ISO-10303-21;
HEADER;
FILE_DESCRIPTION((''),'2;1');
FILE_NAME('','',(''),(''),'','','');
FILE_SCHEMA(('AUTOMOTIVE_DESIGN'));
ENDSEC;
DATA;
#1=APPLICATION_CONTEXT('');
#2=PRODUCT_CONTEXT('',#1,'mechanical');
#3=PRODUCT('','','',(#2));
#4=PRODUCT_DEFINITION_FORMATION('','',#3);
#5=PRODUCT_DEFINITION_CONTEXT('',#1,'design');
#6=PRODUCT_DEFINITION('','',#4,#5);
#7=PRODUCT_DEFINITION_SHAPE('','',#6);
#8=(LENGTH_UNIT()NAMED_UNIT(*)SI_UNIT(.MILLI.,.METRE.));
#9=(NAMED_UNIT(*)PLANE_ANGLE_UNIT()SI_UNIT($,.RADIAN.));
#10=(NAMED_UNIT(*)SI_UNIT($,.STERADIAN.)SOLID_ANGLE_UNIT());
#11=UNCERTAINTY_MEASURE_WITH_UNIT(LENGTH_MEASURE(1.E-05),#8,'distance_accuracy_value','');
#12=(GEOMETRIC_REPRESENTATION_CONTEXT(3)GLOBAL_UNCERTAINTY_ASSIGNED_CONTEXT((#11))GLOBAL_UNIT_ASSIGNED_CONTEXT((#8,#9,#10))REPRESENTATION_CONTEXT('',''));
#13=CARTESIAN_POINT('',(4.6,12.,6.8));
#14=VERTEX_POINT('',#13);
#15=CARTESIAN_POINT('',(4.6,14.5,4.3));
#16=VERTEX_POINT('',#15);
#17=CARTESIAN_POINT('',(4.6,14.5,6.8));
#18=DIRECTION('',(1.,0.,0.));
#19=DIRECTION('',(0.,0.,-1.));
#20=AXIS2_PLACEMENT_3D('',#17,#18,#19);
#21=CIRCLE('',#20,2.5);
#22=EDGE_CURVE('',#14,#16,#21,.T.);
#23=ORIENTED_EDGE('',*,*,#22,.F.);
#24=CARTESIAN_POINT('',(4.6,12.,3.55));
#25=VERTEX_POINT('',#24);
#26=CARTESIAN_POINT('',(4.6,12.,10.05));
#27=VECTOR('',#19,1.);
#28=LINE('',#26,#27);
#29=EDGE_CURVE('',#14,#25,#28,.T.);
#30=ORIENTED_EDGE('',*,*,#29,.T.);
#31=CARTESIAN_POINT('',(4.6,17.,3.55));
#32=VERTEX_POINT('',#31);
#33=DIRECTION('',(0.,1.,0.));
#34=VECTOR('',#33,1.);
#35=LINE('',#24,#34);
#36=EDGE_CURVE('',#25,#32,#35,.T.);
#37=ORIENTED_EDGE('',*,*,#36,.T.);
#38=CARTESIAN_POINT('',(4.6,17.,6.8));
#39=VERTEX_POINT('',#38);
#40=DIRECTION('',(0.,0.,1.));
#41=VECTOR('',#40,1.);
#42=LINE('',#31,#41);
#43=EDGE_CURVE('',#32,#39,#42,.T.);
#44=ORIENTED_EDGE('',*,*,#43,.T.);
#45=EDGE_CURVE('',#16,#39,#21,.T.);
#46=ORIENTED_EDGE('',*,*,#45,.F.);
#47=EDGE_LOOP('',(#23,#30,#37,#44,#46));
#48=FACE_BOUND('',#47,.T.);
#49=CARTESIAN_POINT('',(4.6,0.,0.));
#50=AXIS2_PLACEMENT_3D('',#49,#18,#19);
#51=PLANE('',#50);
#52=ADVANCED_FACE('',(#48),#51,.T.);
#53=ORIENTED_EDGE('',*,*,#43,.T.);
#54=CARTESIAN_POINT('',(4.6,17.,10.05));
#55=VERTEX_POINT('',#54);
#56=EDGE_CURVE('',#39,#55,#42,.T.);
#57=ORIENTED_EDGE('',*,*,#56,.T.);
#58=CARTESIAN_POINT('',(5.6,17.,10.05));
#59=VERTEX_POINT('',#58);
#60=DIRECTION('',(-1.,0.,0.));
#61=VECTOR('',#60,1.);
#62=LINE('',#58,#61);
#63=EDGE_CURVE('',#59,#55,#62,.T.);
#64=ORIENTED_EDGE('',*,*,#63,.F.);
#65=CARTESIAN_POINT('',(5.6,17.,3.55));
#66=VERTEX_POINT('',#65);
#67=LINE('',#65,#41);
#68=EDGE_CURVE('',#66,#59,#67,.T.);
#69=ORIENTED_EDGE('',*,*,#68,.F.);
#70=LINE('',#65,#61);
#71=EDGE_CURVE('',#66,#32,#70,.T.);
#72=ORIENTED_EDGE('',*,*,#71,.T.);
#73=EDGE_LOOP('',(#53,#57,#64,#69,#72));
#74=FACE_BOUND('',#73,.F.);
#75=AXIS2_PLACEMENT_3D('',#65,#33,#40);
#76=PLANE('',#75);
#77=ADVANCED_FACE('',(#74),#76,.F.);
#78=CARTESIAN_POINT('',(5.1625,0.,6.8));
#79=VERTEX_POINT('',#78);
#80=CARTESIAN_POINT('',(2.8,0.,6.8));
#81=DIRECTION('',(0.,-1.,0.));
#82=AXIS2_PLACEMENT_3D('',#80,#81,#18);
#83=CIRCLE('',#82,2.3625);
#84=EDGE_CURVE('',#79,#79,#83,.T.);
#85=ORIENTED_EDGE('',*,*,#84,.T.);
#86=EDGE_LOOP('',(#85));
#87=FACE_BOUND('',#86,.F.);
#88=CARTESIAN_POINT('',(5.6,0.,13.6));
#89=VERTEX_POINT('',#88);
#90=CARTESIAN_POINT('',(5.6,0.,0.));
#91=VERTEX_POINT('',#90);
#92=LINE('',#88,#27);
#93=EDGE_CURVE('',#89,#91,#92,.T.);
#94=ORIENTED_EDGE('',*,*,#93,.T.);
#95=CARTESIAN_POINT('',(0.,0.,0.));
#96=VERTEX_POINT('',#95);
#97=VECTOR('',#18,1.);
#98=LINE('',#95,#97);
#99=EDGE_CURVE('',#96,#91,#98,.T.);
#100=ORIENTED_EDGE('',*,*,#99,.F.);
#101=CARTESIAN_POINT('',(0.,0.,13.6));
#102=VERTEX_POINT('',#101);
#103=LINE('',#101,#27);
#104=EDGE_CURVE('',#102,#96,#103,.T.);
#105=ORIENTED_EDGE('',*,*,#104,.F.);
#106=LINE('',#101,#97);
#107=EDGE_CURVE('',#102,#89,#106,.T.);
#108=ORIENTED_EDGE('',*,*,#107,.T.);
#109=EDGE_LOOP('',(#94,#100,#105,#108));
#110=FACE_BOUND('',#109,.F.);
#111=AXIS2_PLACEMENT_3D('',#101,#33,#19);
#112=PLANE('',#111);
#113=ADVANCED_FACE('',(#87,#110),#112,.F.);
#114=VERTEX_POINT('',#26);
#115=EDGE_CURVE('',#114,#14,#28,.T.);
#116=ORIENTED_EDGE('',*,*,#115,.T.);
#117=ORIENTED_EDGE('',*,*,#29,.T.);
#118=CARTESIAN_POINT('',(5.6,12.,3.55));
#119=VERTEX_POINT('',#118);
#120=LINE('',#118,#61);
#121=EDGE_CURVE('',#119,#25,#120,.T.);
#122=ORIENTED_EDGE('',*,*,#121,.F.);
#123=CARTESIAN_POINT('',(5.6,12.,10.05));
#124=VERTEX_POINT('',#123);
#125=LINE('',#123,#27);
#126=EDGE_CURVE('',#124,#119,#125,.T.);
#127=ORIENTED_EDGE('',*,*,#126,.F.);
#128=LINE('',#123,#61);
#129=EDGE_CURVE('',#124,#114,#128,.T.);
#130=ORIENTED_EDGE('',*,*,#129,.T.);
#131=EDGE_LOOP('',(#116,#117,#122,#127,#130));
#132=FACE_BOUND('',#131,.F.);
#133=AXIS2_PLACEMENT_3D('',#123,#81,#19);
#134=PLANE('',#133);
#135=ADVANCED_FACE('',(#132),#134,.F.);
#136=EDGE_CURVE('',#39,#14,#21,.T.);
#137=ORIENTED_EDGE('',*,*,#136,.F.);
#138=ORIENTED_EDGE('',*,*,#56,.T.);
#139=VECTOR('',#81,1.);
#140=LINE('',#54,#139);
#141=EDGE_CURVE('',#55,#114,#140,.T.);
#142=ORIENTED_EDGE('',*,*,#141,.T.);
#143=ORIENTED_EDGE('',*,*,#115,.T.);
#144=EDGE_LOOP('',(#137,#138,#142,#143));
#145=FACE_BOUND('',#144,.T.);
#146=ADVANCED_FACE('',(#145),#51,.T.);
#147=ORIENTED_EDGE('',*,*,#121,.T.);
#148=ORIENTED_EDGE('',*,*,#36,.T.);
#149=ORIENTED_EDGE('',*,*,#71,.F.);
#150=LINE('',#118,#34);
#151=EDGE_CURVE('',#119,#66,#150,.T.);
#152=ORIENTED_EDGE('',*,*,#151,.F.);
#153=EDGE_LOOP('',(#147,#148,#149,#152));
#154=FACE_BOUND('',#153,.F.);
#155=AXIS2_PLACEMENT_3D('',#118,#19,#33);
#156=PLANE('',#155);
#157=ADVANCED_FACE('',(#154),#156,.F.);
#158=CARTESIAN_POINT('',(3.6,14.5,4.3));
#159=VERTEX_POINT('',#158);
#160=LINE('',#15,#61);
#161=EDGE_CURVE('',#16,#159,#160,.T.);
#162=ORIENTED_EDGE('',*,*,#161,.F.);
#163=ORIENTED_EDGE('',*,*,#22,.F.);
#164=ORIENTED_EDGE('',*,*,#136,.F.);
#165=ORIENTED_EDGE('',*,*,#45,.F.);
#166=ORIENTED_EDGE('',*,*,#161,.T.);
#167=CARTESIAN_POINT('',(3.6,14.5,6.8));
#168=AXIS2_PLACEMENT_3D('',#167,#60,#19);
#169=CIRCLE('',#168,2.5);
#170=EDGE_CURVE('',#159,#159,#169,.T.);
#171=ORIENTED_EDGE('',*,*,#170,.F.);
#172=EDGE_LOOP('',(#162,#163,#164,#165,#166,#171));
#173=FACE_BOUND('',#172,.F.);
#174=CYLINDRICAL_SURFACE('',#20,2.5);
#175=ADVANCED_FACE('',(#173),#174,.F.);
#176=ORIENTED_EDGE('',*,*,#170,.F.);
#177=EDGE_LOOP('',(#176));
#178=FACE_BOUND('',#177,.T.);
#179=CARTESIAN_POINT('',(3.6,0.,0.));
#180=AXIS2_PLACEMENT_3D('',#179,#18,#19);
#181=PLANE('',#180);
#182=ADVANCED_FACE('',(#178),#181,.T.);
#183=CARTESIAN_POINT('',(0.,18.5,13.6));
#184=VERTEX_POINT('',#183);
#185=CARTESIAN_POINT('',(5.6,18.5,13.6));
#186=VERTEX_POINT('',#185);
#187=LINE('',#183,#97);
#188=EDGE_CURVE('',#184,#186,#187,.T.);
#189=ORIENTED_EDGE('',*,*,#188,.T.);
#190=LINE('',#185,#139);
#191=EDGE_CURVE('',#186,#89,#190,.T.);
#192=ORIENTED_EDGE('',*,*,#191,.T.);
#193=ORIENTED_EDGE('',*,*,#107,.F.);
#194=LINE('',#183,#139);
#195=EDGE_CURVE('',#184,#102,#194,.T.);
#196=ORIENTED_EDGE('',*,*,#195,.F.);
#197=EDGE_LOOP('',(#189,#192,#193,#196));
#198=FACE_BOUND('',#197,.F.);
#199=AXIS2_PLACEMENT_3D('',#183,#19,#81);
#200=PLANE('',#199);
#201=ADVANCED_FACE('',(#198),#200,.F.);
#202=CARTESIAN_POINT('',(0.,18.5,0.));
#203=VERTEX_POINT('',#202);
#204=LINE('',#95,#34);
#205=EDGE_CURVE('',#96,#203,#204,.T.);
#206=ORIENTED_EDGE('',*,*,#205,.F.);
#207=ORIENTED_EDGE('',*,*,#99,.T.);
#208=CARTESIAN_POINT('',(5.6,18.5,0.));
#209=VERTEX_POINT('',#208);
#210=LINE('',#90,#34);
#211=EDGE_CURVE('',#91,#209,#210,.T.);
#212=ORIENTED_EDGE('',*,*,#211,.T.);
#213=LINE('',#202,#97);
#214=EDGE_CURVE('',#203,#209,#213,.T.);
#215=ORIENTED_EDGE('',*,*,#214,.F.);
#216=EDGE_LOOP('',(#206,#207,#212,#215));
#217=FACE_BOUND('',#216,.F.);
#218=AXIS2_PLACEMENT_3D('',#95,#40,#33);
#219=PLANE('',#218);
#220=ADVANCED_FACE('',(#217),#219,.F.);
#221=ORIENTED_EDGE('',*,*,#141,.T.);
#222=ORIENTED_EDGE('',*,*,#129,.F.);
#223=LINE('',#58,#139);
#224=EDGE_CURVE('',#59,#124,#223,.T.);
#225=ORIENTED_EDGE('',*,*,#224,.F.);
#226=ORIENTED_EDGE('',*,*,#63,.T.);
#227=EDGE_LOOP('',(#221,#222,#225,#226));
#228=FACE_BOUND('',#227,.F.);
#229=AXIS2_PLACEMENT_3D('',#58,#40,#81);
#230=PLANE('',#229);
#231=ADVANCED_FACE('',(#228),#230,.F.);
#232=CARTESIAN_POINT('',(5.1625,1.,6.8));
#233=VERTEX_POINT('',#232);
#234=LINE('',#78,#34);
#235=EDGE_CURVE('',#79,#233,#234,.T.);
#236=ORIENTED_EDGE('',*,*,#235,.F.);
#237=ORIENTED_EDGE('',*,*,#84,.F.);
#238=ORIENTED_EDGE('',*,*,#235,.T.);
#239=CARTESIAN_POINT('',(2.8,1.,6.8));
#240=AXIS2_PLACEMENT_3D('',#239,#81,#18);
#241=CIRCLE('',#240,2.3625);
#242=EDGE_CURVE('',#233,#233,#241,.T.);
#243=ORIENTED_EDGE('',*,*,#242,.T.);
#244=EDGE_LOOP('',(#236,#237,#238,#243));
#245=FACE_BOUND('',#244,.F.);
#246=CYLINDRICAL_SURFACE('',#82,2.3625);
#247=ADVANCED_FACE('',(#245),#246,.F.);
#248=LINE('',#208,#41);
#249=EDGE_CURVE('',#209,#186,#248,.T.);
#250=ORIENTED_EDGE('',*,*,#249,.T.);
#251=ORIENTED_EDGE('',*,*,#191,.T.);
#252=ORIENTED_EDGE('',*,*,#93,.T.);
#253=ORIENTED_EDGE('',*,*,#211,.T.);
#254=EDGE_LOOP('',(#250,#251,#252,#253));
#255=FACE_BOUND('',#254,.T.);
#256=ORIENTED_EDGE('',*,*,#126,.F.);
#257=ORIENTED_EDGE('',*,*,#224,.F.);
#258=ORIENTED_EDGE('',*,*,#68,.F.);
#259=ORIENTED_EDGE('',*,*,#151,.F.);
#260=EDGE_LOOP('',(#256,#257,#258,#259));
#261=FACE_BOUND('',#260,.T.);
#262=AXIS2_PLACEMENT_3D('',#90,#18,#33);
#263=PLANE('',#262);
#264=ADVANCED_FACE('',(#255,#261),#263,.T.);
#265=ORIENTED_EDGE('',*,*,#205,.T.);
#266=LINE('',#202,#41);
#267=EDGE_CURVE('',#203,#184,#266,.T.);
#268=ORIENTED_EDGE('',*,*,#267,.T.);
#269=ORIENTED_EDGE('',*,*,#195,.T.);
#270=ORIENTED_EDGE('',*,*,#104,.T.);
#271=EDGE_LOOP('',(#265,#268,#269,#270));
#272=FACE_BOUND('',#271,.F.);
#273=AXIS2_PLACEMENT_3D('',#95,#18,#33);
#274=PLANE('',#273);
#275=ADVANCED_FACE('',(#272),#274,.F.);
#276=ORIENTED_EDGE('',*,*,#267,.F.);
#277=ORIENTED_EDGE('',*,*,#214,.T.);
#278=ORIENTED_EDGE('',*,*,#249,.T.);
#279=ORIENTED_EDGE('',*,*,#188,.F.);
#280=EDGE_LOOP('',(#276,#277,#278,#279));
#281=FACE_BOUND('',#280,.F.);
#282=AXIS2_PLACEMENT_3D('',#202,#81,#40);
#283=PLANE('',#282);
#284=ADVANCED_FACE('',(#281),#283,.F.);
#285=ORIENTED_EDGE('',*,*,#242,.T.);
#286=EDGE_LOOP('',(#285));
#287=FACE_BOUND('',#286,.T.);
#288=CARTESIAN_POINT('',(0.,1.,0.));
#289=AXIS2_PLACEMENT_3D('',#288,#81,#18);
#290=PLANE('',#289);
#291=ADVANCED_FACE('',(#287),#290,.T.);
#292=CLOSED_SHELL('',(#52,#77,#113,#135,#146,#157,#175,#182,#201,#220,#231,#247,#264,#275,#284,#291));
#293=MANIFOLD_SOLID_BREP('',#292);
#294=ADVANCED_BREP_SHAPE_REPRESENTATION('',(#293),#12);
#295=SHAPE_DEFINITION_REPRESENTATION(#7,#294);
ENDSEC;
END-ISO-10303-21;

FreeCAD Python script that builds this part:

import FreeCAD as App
import Part
import Sketcher
from FreeCAD import Vector


def add_polygon(sketch, points):
    """Adds a closed chain of lines whose ends are joined by coincident constraints."""
    first, n = sketch.GeometryCount, len(points)
    for a, b in zip(points, points[1:] + points[:1]):
        sketch.addGeometry(Part.LineSegment(App.Vector(*a, 0), App.Vector(*b, 0)), False)
    for i in range(n):
        sketch.addConstraint(Sketcher.Constraint("Coincident", first + i, 2, first + (i + 1) % n, 1))

doc = App.newDocument("Part")
body = doc.addObject("PartDesign::Body", "Body")

# Sketch on YZ plane
sketch1 = doc.addObject("Sketcher::SketchObject", "Sketch")
body.addObject(sketch1)
sketch1.AttachmentSupport = (doc.YZ_Plane, [""])
sketch1.MapMode = "FlatFace"
add_polygon(sketch1, [(0, 14), (0, 0), (18, 0), (18, 14)])  # lines 0-3
sketch1.addConstraint([
    Sketcher.Constraint("Vertical", 0),
    Sketcher.Constraint("Horizontal", 1),
    Sketcher.Constraint("Vertical", 2),
    Sketcher.Constraint("Horizontal", 3),
    Sketcher.Constraint("Coincident", 0, 2, -1, 1),
    Sketcher.Constraint("DistanceX", 1, 1, 1, 2, 18.5),
    Sketcher.Constraint("DistanceY", 0, 2, 0, 1, 13.6),
])
pad1 = doc.addObject("PartDesign::Pad", "Pad")
body.addObject(pad1)
pad1.Profile = sketch1
pad1.Length = 5.6

# Sketch on YZ plane
sketch2 = doc.addObject("Sketcher::SketchObject", "Sketch001")
body.addObject(sketch2)
sketch2.AttachmentSupport = (doc.YZ_Plane, [""])
sketch2.MapMode = "FlatFace"
sketch2.AttachmentOffset = App.Placement(Vector(0, 0, 5.6), App.Rotation())
add_polygon(sketch2, [(17, 10), (12, 10), (12, 4), (17, 4)])  # lines 0-3
sketch2.addConstraint([
    Sketcher.Constraint("Horizontal", 0),
    Sketcher.Constraint("Vertical", 1),
    Sketcher.Constraint("Horizontal", 2),
    Sketcher.Constraint("Vertical", 3),
    Sketcher.Constraint("DistanceX", 0, 2, 0, 1, 5.0),
    Sketcher.Constraint("DistanceY", 1, 2, 1, 1, 6.5),
    Sketcher.Constraint("DistanceX", -1, 1, 0, 2, 12.0),
    Sketcher.Constraint("DistanceY", -1, 1, 0, 2, 10.05),
])
pocket1 = doc.addObject("PartDesign::Pocket", "Pocket")
body.addObject(pocket1)
pocket1.Profile = sketch2
pocket1.Length = 1

# Sketch on XZ plane
sketch3 = doc.addObject("Sketcher::SketchObject", "Sketch002")
body.addObject(sketch3)
sketch3.AttachmentSupport = (doc.XZ_Plane, [""])
sketch3.MapMode = "FlatFace"
sketch3.addGeometry(Part.Circle(Vector(2.8, 6.8, 0), Vector(0, 0, 1), 2.4), False)
sketch3.addConstraint([
    Sketcher.Constraint("Diameter", 0, 4.725),
    Sketcher.Constraint("DistanceX", -1, 1, 0, 3, 2.8),
    Sketcher.Constraint("DistanceY", -1, 1, 0, 3, 6.8),
])
pocket2 = doc.addObject("PartDesign::Pocket", "Pocket001")
body.addObject(pocket2)
pocket2.Profile = sketch3
pocket2.Length = 1

# Sketch on YZ plane
sketch4 = doc.addObject("Sketcher::SketchObject", "Sketch003")
body.addObject(sketch4)
sketch4.AttachmentSupport = (doc.YZ_Plane, [""])
sketch4.MapMode = "FlatFace"
sketch4.AttachmentOffset = App.Placement(Vector(0, 0, 4.6), App.Rotation())
sketch4.addGeometry(Part.Circle(Vector(14.5, 6.8, 0), Vector(0, 0, 1), 2.5), False)
sketch4.addConstraint([
    Sketcher.Constraint("Diameter", 0, 5.0),
    Sketcher.Constraint("DistanceX", -1, 1, 0, 3, 14.5),
    Sketcher.Constraint("DistanceY", -1, 1, 0, 3, 6.8),
])
pocket3 = doc.addObject("PartDesign::Pocket", "Pocket002")
body.addObject(pocket3)
pocket3.Profile = sketch4
pocket3.Length = 1

doc.recompute()
